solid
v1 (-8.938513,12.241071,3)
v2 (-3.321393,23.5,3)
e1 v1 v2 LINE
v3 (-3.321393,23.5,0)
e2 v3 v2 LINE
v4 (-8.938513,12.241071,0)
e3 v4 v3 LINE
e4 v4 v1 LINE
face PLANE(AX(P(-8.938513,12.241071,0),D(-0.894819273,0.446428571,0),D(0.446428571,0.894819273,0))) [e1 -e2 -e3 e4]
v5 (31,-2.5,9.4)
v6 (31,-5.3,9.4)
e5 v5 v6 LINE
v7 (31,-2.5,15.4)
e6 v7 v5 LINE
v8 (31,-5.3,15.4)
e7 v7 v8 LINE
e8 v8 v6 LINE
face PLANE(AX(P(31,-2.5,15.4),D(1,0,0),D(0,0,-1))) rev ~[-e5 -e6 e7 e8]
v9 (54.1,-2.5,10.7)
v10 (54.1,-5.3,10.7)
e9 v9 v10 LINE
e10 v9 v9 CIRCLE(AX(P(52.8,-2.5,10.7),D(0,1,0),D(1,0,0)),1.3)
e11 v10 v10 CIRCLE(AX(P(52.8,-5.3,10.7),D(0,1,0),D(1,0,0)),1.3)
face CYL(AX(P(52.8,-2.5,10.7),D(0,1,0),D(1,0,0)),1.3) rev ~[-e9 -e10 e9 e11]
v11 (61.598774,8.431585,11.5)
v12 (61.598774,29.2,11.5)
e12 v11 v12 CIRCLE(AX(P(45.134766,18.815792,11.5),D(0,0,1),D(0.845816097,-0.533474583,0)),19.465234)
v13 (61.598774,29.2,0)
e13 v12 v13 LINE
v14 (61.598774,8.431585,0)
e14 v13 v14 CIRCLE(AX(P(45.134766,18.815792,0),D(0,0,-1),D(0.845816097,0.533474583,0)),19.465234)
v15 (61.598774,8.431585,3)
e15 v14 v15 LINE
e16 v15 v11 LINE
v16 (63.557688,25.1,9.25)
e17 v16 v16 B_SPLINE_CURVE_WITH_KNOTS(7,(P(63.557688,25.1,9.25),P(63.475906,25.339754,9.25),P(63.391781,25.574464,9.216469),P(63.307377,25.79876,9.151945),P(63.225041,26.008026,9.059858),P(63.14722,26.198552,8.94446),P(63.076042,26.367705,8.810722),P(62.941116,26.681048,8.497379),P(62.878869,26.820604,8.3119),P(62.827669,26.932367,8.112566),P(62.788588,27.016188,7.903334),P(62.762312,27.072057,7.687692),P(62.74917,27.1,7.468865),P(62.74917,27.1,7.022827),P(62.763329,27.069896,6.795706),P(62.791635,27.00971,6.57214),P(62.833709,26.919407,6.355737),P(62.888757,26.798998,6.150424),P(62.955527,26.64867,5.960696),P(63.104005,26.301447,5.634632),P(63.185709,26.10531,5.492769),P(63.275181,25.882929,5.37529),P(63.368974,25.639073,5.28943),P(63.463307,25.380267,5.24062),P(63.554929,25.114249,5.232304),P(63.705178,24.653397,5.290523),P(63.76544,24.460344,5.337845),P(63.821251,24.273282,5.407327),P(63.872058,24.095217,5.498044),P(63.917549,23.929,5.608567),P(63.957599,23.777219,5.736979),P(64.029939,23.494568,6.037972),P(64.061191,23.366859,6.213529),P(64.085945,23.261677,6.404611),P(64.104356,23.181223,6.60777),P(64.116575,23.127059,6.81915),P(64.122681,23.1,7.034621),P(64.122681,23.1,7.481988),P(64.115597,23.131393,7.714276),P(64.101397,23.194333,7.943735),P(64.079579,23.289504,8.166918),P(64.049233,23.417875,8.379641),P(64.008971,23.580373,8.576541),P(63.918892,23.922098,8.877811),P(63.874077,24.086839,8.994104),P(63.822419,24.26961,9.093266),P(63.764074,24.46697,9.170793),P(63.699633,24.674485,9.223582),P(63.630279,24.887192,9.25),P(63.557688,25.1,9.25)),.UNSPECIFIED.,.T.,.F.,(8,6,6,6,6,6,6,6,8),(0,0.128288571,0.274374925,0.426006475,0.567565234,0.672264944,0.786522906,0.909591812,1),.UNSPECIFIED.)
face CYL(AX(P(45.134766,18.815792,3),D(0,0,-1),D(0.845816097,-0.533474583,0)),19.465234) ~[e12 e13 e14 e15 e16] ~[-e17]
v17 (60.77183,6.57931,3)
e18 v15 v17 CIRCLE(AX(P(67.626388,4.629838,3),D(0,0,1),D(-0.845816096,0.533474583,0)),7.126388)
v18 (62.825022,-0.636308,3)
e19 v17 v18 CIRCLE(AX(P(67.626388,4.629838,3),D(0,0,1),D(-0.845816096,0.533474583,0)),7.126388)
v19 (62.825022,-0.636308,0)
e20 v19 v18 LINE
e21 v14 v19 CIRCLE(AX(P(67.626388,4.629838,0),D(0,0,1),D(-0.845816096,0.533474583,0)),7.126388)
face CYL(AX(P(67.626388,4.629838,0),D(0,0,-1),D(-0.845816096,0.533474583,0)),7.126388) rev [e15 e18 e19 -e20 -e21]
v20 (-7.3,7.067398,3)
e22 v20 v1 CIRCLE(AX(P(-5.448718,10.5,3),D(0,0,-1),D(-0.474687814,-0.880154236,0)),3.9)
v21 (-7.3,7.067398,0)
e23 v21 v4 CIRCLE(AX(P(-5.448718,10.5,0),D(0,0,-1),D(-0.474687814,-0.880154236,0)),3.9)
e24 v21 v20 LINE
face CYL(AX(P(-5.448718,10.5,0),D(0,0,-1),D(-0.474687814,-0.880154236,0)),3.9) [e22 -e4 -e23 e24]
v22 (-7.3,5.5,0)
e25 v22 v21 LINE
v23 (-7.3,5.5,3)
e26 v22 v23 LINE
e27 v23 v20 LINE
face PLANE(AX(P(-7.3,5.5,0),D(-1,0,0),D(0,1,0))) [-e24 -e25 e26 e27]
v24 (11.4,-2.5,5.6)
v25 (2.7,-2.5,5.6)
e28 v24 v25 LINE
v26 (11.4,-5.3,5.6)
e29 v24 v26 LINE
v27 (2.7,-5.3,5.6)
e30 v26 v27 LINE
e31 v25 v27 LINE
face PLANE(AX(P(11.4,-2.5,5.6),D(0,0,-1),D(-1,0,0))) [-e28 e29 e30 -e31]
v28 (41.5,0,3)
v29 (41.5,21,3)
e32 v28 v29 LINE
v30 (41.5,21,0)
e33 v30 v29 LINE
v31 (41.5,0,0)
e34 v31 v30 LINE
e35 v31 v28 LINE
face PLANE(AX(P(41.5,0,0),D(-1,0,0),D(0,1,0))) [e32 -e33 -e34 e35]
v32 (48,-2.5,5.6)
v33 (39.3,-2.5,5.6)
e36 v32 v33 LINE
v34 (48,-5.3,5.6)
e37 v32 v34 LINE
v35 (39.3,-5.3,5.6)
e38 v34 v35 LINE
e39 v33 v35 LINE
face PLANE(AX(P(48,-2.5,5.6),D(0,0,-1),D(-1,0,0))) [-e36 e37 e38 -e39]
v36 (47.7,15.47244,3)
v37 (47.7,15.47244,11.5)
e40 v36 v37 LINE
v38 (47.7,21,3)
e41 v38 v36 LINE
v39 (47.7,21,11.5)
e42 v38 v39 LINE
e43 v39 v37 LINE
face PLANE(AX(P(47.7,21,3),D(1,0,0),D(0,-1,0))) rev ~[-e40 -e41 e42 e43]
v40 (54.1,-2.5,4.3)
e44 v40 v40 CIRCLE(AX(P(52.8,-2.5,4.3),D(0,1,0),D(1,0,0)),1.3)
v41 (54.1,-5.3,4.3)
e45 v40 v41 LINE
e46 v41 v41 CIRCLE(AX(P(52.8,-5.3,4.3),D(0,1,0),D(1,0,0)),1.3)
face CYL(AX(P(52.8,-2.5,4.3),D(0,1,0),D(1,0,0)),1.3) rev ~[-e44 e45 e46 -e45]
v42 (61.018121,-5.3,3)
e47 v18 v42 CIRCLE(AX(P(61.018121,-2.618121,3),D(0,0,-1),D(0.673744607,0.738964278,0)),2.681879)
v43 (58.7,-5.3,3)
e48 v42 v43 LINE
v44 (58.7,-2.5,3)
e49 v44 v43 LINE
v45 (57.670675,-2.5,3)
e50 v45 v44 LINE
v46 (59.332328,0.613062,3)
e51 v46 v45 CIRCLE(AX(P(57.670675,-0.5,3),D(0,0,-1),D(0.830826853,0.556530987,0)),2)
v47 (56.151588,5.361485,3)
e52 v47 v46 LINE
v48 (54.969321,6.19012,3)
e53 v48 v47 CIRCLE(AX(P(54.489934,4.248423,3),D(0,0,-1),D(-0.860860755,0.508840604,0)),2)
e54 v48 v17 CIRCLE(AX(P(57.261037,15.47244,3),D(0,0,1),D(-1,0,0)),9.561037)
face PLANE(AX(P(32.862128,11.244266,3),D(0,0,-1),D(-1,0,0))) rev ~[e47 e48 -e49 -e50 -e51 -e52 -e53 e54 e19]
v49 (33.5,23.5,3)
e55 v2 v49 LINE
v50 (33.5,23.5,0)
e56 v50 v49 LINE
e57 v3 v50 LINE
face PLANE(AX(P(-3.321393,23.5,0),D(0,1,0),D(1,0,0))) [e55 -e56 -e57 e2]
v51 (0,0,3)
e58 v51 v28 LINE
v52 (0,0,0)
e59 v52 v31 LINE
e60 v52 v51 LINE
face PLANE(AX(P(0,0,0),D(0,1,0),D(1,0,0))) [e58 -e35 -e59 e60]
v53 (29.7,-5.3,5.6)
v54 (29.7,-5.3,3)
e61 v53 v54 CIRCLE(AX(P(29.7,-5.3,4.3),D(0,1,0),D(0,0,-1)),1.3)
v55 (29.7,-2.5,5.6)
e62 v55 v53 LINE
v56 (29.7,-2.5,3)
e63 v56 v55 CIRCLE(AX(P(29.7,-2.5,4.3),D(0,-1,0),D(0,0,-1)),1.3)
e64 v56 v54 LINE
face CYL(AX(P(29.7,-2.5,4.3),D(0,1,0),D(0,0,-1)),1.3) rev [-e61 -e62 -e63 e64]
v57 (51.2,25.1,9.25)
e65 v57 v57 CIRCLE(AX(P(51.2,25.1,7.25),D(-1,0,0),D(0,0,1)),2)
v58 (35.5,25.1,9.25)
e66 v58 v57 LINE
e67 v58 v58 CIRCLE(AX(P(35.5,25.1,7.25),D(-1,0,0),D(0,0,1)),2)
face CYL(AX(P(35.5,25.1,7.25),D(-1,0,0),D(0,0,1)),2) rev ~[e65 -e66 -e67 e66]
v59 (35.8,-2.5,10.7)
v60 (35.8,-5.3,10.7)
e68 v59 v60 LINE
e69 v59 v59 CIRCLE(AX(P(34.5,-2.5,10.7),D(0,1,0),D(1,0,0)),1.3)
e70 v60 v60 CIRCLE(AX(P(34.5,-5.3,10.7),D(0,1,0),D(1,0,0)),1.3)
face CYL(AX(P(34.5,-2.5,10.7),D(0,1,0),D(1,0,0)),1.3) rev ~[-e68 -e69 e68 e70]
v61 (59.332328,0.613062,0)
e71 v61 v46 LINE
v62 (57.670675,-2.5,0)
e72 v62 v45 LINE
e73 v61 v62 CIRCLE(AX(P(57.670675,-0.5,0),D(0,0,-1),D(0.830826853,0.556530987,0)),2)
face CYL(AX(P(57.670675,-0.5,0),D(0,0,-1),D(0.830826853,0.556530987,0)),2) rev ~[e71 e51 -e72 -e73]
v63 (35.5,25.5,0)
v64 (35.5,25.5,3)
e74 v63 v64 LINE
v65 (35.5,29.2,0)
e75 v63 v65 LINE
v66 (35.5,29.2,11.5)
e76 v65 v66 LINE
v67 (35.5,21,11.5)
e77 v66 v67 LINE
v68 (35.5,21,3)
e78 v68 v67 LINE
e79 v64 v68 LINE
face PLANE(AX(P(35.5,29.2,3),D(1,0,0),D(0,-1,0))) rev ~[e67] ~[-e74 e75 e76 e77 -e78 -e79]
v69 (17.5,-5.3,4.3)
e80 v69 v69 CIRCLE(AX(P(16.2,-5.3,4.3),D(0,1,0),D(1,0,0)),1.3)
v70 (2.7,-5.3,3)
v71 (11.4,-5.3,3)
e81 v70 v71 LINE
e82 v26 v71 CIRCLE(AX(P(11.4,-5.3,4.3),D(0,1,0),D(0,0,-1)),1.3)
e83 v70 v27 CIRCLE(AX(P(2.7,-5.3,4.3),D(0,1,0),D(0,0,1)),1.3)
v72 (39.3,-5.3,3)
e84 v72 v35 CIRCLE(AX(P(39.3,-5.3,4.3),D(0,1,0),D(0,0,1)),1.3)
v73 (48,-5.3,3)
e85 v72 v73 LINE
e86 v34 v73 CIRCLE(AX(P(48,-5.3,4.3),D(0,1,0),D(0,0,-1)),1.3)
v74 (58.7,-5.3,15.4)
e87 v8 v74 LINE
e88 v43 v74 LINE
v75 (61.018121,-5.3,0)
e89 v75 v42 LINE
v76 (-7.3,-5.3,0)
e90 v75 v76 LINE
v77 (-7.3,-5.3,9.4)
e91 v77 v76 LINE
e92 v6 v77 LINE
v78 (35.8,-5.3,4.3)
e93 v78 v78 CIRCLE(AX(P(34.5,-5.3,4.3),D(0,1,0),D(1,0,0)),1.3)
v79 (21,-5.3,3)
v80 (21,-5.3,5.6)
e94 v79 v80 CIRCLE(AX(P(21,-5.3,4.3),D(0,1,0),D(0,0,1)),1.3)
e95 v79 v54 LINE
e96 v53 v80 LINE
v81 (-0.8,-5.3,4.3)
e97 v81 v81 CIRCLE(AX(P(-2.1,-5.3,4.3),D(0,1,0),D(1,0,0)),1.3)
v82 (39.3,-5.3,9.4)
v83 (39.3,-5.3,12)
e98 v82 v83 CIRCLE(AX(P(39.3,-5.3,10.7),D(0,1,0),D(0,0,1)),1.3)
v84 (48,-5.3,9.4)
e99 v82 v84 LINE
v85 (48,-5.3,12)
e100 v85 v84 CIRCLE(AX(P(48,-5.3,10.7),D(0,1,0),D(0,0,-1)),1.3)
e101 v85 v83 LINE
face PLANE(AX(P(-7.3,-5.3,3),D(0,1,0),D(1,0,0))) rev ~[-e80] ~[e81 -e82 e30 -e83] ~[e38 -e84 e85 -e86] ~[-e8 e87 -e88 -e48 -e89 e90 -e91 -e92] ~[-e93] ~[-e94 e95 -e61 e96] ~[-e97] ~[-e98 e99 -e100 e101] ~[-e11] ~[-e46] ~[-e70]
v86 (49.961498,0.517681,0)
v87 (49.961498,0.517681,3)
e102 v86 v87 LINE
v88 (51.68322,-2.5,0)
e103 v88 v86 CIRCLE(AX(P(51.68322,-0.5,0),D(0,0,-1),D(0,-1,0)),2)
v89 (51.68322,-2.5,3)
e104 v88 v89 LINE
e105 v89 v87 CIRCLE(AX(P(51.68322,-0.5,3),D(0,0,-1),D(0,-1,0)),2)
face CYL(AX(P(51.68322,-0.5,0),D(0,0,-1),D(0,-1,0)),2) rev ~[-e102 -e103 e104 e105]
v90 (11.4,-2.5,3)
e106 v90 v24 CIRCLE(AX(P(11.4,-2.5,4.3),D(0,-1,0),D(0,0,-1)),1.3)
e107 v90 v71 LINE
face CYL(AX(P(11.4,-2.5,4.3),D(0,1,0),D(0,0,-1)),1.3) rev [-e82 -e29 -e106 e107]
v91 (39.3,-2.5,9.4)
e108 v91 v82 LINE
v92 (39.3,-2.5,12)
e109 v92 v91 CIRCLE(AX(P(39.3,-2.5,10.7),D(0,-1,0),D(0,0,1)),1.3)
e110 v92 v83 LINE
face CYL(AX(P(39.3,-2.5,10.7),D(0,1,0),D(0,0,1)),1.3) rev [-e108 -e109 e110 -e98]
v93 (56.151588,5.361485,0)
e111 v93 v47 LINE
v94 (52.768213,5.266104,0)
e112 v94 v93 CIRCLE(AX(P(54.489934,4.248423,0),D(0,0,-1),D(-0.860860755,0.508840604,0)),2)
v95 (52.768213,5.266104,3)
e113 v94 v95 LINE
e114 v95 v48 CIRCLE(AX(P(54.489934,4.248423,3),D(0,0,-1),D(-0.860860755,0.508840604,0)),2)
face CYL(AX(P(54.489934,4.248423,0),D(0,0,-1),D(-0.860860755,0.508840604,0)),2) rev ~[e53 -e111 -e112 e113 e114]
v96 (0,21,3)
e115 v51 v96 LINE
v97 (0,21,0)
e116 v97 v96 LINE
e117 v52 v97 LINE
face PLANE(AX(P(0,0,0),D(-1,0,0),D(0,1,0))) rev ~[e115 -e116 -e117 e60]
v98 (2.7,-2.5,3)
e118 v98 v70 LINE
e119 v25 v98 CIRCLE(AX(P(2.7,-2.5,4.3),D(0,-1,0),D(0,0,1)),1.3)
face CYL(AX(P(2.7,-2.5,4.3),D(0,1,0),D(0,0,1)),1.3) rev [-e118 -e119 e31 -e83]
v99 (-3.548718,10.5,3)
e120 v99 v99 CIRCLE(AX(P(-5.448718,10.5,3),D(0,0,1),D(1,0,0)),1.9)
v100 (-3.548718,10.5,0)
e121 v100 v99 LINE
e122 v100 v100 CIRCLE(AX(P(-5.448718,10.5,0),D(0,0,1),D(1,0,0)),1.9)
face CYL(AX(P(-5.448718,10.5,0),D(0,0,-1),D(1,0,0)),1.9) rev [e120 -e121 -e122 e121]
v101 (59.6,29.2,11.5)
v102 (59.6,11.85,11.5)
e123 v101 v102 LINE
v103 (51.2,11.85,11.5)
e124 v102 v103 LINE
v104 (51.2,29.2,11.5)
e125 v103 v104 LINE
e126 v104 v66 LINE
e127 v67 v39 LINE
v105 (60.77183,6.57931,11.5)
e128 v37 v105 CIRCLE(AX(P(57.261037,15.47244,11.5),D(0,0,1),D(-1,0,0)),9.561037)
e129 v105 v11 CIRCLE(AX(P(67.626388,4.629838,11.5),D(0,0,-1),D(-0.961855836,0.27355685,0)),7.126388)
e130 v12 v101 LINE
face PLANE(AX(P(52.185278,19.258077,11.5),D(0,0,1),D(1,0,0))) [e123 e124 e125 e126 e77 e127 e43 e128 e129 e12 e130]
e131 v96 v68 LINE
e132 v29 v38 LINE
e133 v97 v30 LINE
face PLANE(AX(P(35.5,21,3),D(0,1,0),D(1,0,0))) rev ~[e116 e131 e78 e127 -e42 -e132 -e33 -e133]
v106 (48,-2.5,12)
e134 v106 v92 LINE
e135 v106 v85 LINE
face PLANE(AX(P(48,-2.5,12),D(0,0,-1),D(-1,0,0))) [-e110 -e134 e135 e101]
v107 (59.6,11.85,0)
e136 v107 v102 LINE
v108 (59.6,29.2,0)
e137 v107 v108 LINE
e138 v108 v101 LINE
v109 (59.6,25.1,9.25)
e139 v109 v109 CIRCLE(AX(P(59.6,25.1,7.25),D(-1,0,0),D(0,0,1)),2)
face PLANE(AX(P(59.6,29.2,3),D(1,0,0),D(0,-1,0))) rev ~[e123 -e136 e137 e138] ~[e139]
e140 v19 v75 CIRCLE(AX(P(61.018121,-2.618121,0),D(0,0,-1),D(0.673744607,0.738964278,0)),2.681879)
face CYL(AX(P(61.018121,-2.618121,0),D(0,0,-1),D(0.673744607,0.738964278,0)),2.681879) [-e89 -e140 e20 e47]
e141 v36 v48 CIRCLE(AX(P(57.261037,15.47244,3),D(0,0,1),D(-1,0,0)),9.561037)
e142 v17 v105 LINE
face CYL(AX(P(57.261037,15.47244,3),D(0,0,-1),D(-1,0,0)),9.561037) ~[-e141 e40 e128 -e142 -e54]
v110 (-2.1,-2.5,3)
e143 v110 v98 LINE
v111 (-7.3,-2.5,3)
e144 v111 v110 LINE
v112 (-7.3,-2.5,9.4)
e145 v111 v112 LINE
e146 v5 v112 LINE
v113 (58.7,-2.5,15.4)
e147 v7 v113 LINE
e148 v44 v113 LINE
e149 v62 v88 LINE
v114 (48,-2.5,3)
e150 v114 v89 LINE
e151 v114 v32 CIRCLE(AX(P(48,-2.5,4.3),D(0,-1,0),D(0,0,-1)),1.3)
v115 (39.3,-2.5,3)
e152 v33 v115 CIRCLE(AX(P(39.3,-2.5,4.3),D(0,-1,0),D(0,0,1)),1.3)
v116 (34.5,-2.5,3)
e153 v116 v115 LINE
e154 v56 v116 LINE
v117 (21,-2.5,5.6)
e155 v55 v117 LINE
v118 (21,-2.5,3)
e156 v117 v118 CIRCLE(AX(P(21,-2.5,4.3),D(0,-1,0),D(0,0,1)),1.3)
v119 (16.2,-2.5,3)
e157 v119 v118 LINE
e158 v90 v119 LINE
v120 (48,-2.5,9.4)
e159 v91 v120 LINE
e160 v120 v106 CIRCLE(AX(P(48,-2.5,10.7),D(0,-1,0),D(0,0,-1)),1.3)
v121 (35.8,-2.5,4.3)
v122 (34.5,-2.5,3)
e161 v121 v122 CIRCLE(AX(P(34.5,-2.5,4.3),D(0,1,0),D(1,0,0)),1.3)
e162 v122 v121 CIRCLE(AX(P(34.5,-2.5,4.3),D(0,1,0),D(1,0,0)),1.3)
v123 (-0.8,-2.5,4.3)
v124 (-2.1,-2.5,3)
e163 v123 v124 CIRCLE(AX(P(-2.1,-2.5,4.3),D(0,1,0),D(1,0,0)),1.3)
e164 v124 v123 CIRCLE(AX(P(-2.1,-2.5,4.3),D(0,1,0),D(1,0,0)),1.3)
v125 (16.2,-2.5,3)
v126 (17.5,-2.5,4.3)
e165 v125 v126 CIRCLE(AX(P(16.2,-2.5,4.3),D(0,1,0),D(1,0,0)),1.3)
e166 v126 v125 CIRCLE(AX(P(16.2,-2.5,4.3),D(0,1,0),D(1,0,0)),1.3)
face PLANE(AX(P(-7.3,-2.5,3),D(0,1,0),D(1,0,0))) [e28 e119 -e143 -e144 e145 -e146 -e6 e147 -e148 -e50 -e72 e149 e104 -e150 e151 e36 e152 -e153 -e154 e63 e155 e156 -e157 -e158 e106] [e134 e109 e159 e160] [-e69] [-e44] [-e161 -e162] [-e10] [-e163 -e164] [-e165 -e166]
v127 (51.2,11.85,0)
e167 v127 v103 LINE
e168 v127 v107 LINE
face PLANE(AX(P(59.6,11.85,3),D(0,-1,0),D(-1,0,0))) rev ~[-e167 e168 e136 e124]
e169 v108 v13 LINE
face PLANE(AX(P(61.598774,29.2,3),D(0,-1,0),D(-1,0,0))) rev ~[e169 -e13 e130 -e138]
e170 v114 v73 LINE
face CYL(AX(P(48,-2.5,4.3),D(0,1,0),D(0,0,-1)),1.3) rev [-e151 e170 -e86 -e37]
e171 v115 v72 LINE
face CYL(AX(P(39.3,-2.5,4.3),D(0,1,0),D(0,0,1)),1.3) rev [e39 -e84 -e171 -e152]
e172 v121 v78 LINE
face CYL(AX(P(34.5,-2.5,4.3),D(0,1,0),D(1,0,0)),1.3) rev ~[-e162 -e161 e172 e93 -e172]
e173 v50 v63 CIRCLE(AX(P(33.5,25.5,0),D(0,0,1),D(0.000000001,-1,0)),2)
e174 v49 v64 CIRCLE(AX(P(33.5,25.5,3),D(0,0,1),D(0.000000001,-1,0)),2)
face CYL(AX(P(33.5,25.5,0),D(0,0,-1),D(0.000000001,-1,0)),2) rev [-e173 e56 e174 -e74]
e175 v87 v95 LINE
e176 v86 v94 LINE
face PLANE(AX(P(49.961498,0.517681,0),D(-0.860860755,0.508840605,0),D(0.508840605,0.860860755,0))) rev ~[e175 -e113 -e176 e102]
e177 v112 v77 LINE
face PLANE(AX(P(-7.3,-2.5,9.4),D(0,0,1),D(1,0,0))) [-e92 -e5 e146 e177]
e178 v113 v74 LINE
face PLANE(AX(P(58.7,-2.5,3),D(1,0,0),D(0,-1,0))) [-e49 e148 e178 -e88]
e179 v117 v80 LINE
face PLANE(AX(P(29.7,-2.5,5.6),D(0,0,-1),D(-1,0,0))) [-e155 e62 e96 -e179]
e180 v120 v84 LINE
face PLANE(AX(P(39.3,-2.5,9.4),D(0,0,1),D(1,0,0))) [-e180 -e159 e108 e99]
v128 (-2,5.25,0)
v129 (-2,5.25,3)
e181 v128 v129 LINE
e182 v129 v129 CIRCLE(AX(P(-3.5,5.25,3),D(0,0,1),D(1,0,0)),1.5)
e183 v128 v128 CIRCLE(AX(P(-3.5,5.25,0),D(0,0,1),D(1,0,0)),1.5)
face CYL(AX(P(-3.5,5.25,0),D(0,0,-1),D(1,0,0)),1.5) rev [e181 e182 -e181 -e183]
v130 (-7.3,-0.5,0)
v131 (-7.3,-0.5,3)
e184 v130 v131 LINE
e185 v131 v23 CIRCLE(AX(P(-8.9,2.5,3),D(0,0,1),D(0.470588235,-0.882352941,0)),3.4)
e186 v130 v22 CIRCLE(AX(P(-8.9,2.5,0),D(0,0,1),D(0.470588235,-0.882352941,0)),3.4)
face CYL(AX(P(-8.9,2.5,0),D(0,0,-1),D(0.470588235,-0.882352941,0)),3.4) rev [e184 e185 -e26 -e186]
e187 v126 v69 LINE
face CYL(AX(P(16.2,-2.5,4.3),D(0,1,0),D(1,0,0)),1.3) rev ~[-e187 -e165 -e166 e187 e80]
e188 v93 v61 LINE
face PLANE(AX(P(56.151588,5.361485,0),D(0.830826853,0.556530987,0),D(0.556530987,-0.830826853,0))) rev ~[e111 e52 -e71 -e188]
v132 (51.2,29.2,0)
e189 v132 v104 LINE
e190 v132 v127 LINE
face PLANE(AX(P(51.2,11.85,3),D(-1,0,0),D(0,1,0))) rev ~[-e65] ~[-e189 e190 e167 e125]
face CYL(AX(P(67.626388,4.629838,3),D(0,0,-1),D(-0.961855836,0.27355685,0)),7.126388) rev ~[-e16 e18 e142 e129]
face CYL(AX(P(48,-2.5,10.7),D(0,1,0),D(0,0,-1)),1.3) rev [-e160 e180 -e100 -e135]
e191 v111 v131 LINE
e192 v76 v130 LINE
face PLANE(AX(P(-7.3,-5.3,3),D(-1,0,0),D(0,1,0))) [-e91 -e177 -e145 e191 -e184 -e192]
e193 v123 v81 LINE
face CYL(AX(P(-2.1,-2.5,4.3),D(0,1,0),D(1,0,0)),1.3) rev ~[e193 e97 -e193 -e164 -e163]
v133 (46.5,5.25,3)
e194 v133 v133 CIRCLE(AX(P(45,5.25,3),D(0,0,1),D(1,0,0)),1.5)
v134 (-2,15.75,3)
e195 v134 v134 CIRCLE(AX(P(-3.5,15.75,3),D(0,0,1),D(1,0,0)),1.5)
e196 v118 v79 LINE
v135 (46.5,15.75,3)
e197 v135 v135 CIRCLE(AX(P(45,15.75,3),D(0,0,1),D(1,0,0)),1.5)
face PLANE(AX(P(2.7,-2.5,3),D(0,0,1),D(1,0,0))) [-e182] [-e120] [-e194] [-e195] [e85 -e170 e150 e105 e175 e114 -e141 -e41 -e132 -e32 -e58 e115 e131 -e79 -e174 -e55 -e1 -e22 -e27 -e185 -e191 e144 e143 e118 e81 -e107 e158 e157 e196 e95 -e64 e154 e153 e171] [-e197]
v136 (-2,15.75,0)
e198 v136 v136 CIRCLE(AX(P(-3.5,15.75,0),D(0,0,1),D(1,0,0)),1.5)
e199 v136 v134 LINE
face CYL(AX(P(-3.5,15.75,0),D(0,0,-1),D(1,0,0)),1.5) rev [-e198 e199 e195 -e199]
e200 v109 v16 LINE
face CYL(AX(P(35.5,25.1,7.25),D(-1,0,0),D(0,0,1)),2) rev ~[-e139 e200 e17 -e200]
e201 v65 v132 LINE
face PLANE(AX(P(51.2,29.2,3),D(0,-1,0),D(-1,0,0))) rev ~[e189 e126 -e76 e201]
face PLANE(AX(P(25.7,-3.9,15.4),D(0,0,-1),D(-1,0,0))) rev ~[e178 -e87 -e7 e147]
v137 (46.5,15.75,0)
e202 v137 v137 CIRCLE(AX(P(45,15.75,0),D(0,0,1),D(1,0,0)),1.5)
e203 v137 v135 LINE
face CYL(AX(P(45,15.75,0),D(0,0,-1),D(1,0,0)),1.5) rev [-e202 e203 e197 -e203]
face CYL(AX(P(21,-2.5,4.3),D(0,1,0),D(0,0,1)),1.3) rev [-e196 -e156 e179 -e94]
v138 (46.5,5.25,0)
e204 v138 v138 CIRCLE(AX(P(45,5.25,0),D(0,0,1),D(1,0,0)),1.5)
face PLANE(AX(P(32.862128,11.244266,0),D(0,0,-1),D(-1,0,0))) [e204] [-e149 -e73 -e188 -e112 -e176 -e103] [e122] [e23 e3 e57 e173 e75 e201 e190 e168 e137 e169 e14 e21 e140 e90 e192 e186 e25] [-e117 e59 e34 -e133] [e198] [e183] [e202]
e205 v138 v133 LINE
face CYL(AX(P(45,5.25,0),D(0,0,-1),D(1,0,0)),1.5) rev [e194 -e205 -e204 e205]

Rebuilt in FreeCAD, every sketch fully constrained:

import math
import FreeCAD as App
import Part
import Sketcher
Q = App.Units.Quantity


def add_polygon(sketch, points):
    """Adds a closed chain of lines whose ends are joined by coincident constraints."""
    first, n = sketch.GeometryCount, len(points)
    for a, b in zip(points, points[1:] + points[:1]):
        sketch.addGeometry(Part.LineSegment(App.Vector(*a, 0), App.Vector(*b, 0)), False)
    for i in range(n):
        sketch.addConstraint(Sketcher.Constraint("Coincident", first + i, 2, first + (i + 1) % n, 1))

doc = App.newDocument("Part")
body = doc.addObject("PartDesign::Body", "Body")

# Sketch on XY plane
sketch1 = doc.addObject("Sketcher::SketchObject", "Sketch")
body.addObject(sketch1)
sketch1.AttachmentSupport = (doc.XY_Plane, [""])
sketch1.MapMode = "FlatFace"
sketch1.addGeometry(Part.LineSegment(App.Vector(33.5, 23.5, 0), App.Vector(-3.321393, 23.5, 0)), False)  # 0
sketch1.addGeometry(Part.LineSegment(App.Vector(-3.321393, 23.5, 0), App.Vector(-8.938513, 12.241071, 0)), False)  # 1
sketch1.addGeometry(Part.ArcOfCircle(Part.Circle(App.Vector(-5.448718, 10.5, 0), App.Vector(0, 0, 1), 3.9), math.radians(153.485225), math.radians(241.660974)), False)  # 2
sketch1.addGeometry(Part.LineSegment(App.Vector(-7.3, 7.067398, 0), App.Vector(-7.3, 5.5, 0)), False)  # 3
sketch1.addGeometry(Part.ArcOfCircle(Part.Circle(App.Vector(-8.9, 2.5, 0), App.Vector(0, 0, 1), 3.4), math.radians(-61.927513), math.radians(61.927513)), False)  # 4
sketch1.addGeometry(Part.LineSegment(App.Vector(-7.3, -0.5, 0), App.Vector(-7.3, -5.3, 0)), False)  # 5
sketch1.addGeometry(Part.LineSegment(App.Vector(-7.3, -5.3, 0), App.Vector(61.018121, -5.3, 0)), False)  # 6
sketch1.addGeometry(Part.ArcOfCircle(Part.Circle(App.Vector(61.018121, -2.618121, 0), App.Vector(0, 0, 1), 2.681879), math.radians(-90), math.radians(47.643263)), False)  # 7
sketch1.addGeometry(Part.ArcOfCircle(Part.Circle(App.Vector(67.626388, 4.629838, 0), App.Vector(0, 0, 1), 7.126388), math.radians(147.75948), math.radians(227.643263)), False)  # 8
sketch1.addGeometry(Part.ArcOfCircle(Part.Circle(App.Vector(45.134766, 18.815792, 0), App.Vector(0, 0, 1), 19.465234), math.radians(-32.24052), math.radians(32.24052)), False)  # 9
sketch1.addGeometry(Part.LineSegment(App.Vector(61.598774, 29.2, 0), App.Vector(59.6, 29.2, 0)), False)  # 10
sketch1.addGeometry(Part.LineSegment(App.Vector(59.6, 29.2, 0), App.Vector(59.6, 11.85, 0)), False)  # 11
sketch1.addGeometry(Part.LineSegment(App.Vector(59.6, 11.85, 0), App.Vector(51.2, 11.85, 0)), False)  # 12
sketch1.addGeometry(Part.LineSegment(App.Vector(51.2, 11.85, 0), App.Vector(51.2, 29.2, 0)), False)  # 13
sketch1.addGeometry(Part.LineSegment(App.Vector(51.2, 29.2, 0), App.Vector(35.5, 29.2, 0)), False)  # 14
sketch1.addGeometry(Part.LineSegment(App.Vector(35.5, 29.2, 0), App.Vector(35.5, 25.5, 0)), False)  # 15
sketch1.addGeometry(Part.ArcOfCircle(Part.Circle(App.Vector(33.5, 25.5, 0), App.Vector(0, 0, 1), 2), math.radians(-90), math.radians(0)), False)  # 16
sketch1.addGeometry(Part.LineSegment(App.Vector(49.961498, 0.517681, 0), App.Vector(52.768213, 5.266104, 0)), False)  # 17
sketch1.addGeometry(Part.ArcOfCircle(Part.Circle(App.Vector(54.489934, 4.248423, 0), App.Vector(0, 0, 1), 2), math.radians(33.81623), math.radians(149.413366)), False)  # 18
sketch1.addGeometry(Part.LineSegment(App.Vector(56.151588, 5.361485, 0), App.Vector(59.332328, 0.613062, 0)), False)  # 19
sketch1.addGeometry(Part.ArcOfCircle(Part.Circle(App.Vector(57.670675, -0.5, 0), App.Vector(0, 0, 1), 2), math.radians(-90), math.radians(33.81623)), False)  # 20
sketch1.addGeometry(Part.LineSegment(App.Vector(57.670675, -2.5, 0), App.Vector(51.68322, -2.5, 0)), False)  # 21
sketch1.addGeometry(Part.ArcOfCircle(Part.Circle(App.Vector(51.68322, -0.5, 0), App.Vector(0, 0, 1), 2), math.radians(149.413366), math.radians(270)), False)  # 22
sketch1.addGeometry(Part.Circle(App.Vector(45, 5.25, 0), App.Vector(0, 0, 1), 1.5), False)  # 23
sketch1.addGeometry(Part.Circle(App.Vector(-3.5, 5.25, 0), App.Vector(0, 0, 1), 1.5), False)  # 24
sketch1.addGeometry(Part.Circle(App.Vector(45, 15.75, 0), App.Vector(0, 0, 1), 1.5), False)  # 25
add_polygon(sketch1, [(0, 0), (0, 21), (41.5, 21), (41.5, 0)])  # lines 26-29
sketch1.addGeometry(Part.Circle(App.Vector(-5.448718, 10.5, 0), App.Vector(0, 0, 1), 1.9), False)  # 30
sketch1.addGeometry(Part.Circle(App.Vector(-3.5, 15.75, 0), App.Vector(0, 0, 1), 1.5), False)  # 31
sketch1.addConstraint([
    Sketcher.Constraint("Coincident", 0, 2, 1, 1),
    Sketcher.Constraint("Tangent", 1, 2, 2, 1),
    Sketcher.Constraint("Coincident", 2, 2, 3, 1),
    Sketcher.Constraint("Coincident", 3, 2, 4, 2),
    Sketcher.Constraint("Coincident", 4, 1, 5, 1),
    Sketcher.Constraint("Coincident", 5, 2, 6, 1),
    Sketcher.Constraint("Tangent", 6, 2, 7, 1),
    Sketcher.Constraint("Tangent", 7, 2, 8, 2),
    Sketcher.Constraint("Tangent", 8, 1, 9, 1),
    Sketcher.Constraint("Coincident", 9, 2, 10, 1),
    Sketcher.Constraint("Coincident", 10, 2, 11, 1),
    Sketcher.Constraint("Coincident", 11, 2, 12, 1),
    Sketcher.Constraint("Coincident", 12, 2, 13, 1),
    Sketcher.Constraint("Coincident", 13, 2, 14, 1),
    Sketcher.Constraint("Coincident", 14, 2, 15, 1),
    Sketcher.Constraint("Tangent", 15, 2, 16, 2),
    Sketcher.Constraint("Tangent", 16, 1, 0, 1),
    Sketcher.Constraint("Tangent", 17, 2, 18, 2),
    Sketcher.Constraint("Tangent", 18, 1, 19, 1),
    Sketcher.Constraint("Tangent", 19, 2, 20, 2),
    Sketcher.Constraint("Tangent", 20, 1, 21, 1),
    Sketcher.Constraint("Tangent", 21, 2, 22, 2),
    Sketcher.Constraint("Tangent", 22, 1, 17, 1),
    Sketcher.Constraint("Horizontal", 0),
    Sketcher.Constraint("Vertical", 3),
    Sketcher.Constraint("Vertical", 5),
    Sketcher.Constraint("Horizontal", 6),
    Sketcher.Constraint("Horizontal", 10),
    Sketcher.Constraint("Vertical", 11),
    Sketcher.Constraint("Horizontal", 12),
    Sketcher.Constraint("Vertical", 13),
    Sketcher.Constraint("Horizontal", 14),
    Sketcher.Constraint("Vertical", 15),
    Sketcher.Constraint("Horizontal", 21),
    Sketcher.Constraint("Vertical", 26),
    Sketcher.Constraint("Horizontal", 27),
    Sketcher.Constraint("Vertical", 28),
    Sketcher.Constraint("Horizontal", 29),
    Sketcher.Constraint("Coincident", 29, 2, -1, 1),
    Sketcher.Constraint("Coincident", 30, 3, 2, 3),
    Sketcher.Constraint("Equal", 16, 18),
    Sketcher.Constraint("Equal", 18, 20),
    Sketcher.Constraint("Equal", 20, 22),
    Sketcher.Constraint("Equal", 23, 24),
    Sketcher.Constraint("Equal", 24, 25),
    Sketcher.Constraint("Equal", 25, 31),
    Sketcher.Constraint("Horizontal", 23, 3, 24, 3),
    Sketcher.Constraint("Horizontal", 25, 3, 31, 3),
    Sketcher.Constraint("Horizontal", 22, 3, 4, 1),
    Sketcher.Constraint("Horizontal", 10, 2, 13, 2),
    Sketcher.Constraint("Vertical", 23, 3, 25, 3),
    Sketcher.Constraint("Vertical", 24, 3, 31, 3),
    Sketcher.Constraint("Vertical", 3, 2, 4, 1),
    Sketcher.Constraint("Vertical", 8, 1, 9, 2),
    Sketcher.Constraint("Diameter", 23, Q("3 mm")),
    Sketcher.Constraint("Radius", 16, Q("2 mm")),
    Sketcher.Constraint("Diameter", 30, Q("3.8 mm")),
    Sketcher.Constraint("Radius", 2, Q("3.9 mm")),
    Sketcher.Constraint("Radius", 4, Q("3.4 mm")),
    Sketcher.Constraint("DistanceY", 26, 1, 26, 2, Q("21 mm")),
    Sketcher.Constraint("DistanceX", 12, 2, 12, 1, Q("8.4 mm")),
    Sketcher.Constraint("DistanceX", 14, 2, 14, 1, Q("15.7 mm")),
    Sketcher.Constraint("DistanceX", 27, 1, 27, 2, Q("41.5 mm")),
    Sketcher.Constraint("DistanceY", 5, 2, 5, 1, Q("4.8 mm")),
    Sketcher.Constraint("DistanceY", 15, 2, 15, 1, Q("3.7 mm")),
    Sketcher.Constraint("DistanceX", -1, 1, 23, 3, Q("45 mm")),
    Sketcher.Constraint("DistanceY", 4, 3, 2, 3, Q("8 mm")),
    Sketcher.Constraint("DistanceY", 2, 3, 16, 3, Q("15 mm")),
    Sketcher.Constraint("DistanceY", 20, 3, 16, 3, Q("26 mm")),
    Sketcher.Constraint("DistanceX", 24, 3, 16, 3, Q("37 mm")),
    Sketcher.Constraint("DistanceX", 15, 2, 27, 2, Q("6 mm")),
    Sketcher.Constraint("DistanceY", 11, 2, 11, 1, Q("17.35 mm")),
    Sketcher.Constraint("DistanceY", -1, 1, 2, 3, Q("10.5 mm")),
    Sketcher.Constraint("DistanceX", 4, 3, -1, 1, Q("8.9 mm")),
    Sketcher.Constraint("DistanceY", 23, 3, 25, 3, Q("10.5 mm")),
    Sketcher.Constraint("DistanceY", 12, 2, 25, 3, Q("3.9 mm")),
    Sketcher.Constraint("Radius", 7, Q("2.681879 mm")),
    Sketcher.Constraint("DistanceY", 3, 2, 3, 1, Q("1.567398 mm")),
    Sketcher.Constraint("Radius", 8, Q("7.126388 mm")),
    Sketcher.Constraint("Radius", 9, Q("19.465234 mm")),
    Sketcher.Constraint("Distance", 17, Q("5.515901 mm")),
    Sketcher.Constraint("DistanceX", 6, 1, 6, 2, Q("68.318121 mm")),
    Sketcher.Constraint("DistanceX", -1, 1, 22, 1, Q("49.961498 mm")),
    Sketcher.Constraint("DistanceX", 22, 3, 7, 3, Q("9.334901 mm")),
    Sketcher.Constraint("DistanceX", 7, 3, 7, 2, Q("1.806902 mm")),
    Sketcher.Constraint("DistanceX", 20, 3, 8, 1, Q("3.9281 mm")),
    Sketcher.Constraint("Distance", 1, Q("12.582349 mm")),
])
pad1 = doc.addObject("PartDesign::Pad", "Pad")
body.addObject(pad1)
pad1.Profile = sketch1
pad1.Length = 3

# Sketch on XY plane
sketch2 = doc.addObject("Sketcher::SketchObject", "Sketch001")
body.addObject(sketch2)
sketch2.AttachmentSupport = (doc.XY_Plane, [""])
sketch2.MapMode = "FlatFace"
sketch2.AttachmentOffset = App.Placement(App.Vector(0, 0, 3), App.Rotation())
sketch2.addGeometry([
    Part.LineSegment(App.Vector(61.598774, 29.2, 0), App.Vector(59.6, 29.2, 0)),  # 0
    Part.LineSegment(App.Vector(59.6, 29.2, 0), App.Vector(59.6, 11.85, 0)),  # 1
    Part.LineSegment(App.Vector(59.6, 11.85, 0), App.Vector(51.2, 11.85, 0)),  # 2
    Part.LineSegment(App.Vector(51.2, 11.85, 0), App.Vector(51.2, 29.2, 0)),  # 3
    Part.LineSegment(App.Vector(51.2, 29.2, 0), App.Vector(35.5, 29.2, 0)),  # 4
    Part.LineSegment(App.Vector(35.5, 29.2, 0), App.Vector(35.5, 21, 0)),  # 5
    Part.LineSegment(App.Vector(35.5, 21, 0), App.Vector(47.7, 21, 0)),  # 6
    Part.LineSegment(App.Vector(47.7, 21, 0), App.Vector(47.7, 15.47244, 0)),  # 7
    Part.ArcOfCircle(Part.Circle(App.Vector(57.261037, 15.47244, 0), App.Vector(0, 0, 1), 9.561037), math.radians(180), math.radians(291.542911)),  # 8
    Part.ArcOfCircle(Part.Circle(App.Vector(67.626388, 4.629838, 0), App.Vector(0, 0, 1), 7.126388), math.radians(147.75948), math.radians(164.12397)),  # 9
    Part.ArcOfCircle(Part.Circle(App.Vector(45.134766, 18.815792, 0), App.Vector(0, 0, 1), 19.465234), math.radians(-32.24052), math.radians(32.24052)),  # 10
], False)
sketch2.addConstraint([
    Sketcher.Constraint("Coincident", 0, 2, 1, 1),
    Sketcher.Constraint("Coincident", 1, 2, 2, 1),
    Sketcher.Constraint("Coincident", 2, 2, 3, 1),
    Sketcher.Constraint("Coincident", 3, 2, 4, 1),
    Sketcher.Constraint("Coincident", 4, 2, 5, 1),
    Sketcher.Constraint("Coincident", 5, 2, 6, 1),
    Sketcher.Constraint("Coincident", 6, 2, 7, 1),
    Sketcher.Constraint("Tangent", 7, 2, 8, 1),
    Sketcher.Constraint("Coincident", 8, 2, 9, 2),
    Sketcher.Constraint("Tangent", 9, 1, 10, 1),
    Sketcher.Constraint("Coincident", 10, 2, 0, 1),
    Sketcher.Constraint("Horizontal", 0),
    Sketcher.Constraint("Vertical", 1),
    Sketcher.Constraint("Horizontal", 2),
    Sketcher.Constraint("Vertical", 3),
    Sketcher.Constraint("Horizontal", 4),
    Sketcher.Constraint("Vertical", 5),
    Sketcher.Constraint("Horizontal", 6),
    Sketcher.Constraint("Vertical", 7),
    Sketcher.Constraint("Horizontal", 0, 2, 3, 2),
    Sketcher.Constraint("Vertical", 9, 1, 10, 2),
    Sketcher.Constraint("DistanceX", 2, 2, 2, 1, Q("8.4 mm")),
    Sketcher.Constraint("DistanceX", 4, 2, 4, 1, Q("15.7 mm")),
    Sketcher.Constraint("DistanceX", 6, 1, 6, 2, Q("12.2 mm")),
    Sketcher.Constraint("DistanceY", 5, 2, 5, 1, Q("8.2 mm")),
    Sketcher.Constraint("DistanceY", -1, 1, 5, 2, Q("21 mm")),
    Sketcher.Constraint("DistanceY", 1, 2, 1, 1, Q("17.35 mm")),
    Sketcher.Constraint("DistanceX", -1, 1, 0, 2, Q("59.6 mm")),
    Sketcher.Constraint("Radius", 8, Q("9.561037 mm")),
    Sketcher.Constraint("Radius", 9, Q("7.126388 mm")),
    Sketcher.Constraint("Radius", 10, Q("19.465234 mm")),
    Sketcher.Constraint("DistanceY", 7, 2, 7, 1, Q("5.52756 mm")),
    Sketcher.Constraint("DistanceX", 0, 2, 0, 1, Q("1.998774 mm")),
    Sketcher.Constraint("DistanceY", -1, 1, 9, 3, Q("4.629838 mm")),
])
pad2 = doc.addObject("PartDesign::Pad", "Pad001")
body.addObject(pad2)
pad2.Profile = sketch2
pad2.Length = 8.5

# Sketch on XY plane
sketch3 = doc.addObject("Sketcher::SketchObject", "Sketch002")
body.addObject(sketch3)
sketch3.AttachmentSupport = (doc.XY_Plane, [""])
sketch3.MapMode = "FlatFace"
sketch3.AttachmentOffset = App.Placement(App.Vector(0, 0, 3), App.Rotation())
add_polygon(sketch3, [(-7.3, -5.3), (58.7, -5.3), (58.7, -2.5), (-7.3, -2.5)])  # lines 0-3
sketch3.addConstraint([
    Sketcher.Constraint("Horizontal", 0),
    Sketcher.Constraint("Vertical", 1),
    Sketcher.Constraint("Horizontal", 2),
    Sketcher.Constraint("Vertical", 3),
    Sketcher.Constraint("DistanceX", 0, 1, 0, 2, Q("66 mm")),
    Sketcher.Constraint("DistanceY", 1, 1, 1, 2, Q("2.8 mm")),
    Sketcher.Constraint("DistanceX", -1, 1, 0, 2, Q("58.7 mm")),
    Sketcher.Constraint("DistanceY", 0, 2, -1, 1, Q("5.3 mm")),
])
pad3 = doc.addObject("PartDesign::Pad", "Pad002")
body.addObject(pad3)
pad3.Profile = sketch3
pad3.Length = 12.4

# Sketch on XZ plane
sketch4 = doc.addObject("Sketcher::SketchObject", "Sketch003")
body.addObject(sketch4)
sketch4.AttachmentSupport = (doc.XZ_Plane, [""])
sketch4.MapMode = "FlatFace"
sketch4.AttachmentOffset = App.Placement(App.Vector(0, 0, 2.5), App.Rotation())
sketch4.addGeometry([
    Part.Circle(App.Vector(52.8, 4.3, 0), App.Vector(0, 0, 1), 1.3),  # 0
    Part.Circle(App.Vector(34.5, 4.3, 0), App.Vector(0, 0, 1), 1.3),  # 1
    Part.Circle(App.Vector(52.8, 10.7, 0), App.Vector(0, 0, 1), 1.3),  # 2
    Part.Circle(App.Vector(34.5, 10.7, 0), App.Vector(0, 0, 1), 1.3),  # 3
    Part.Circle(App.Vector(16.2, 10.7, 0), App.Vector(0, 0, 1), 1.3),  # 4
    Part.Circle(App.Vector(-2.1, 10.7, 0), App.Vector(0, 0, 1), 1.3),  # 5
    Part.Circle(App.Vector(16.2, 4.3, 0), App.Vector(0, 0, 1), 1.3),  # 6
    Part.Circle(App.Vector(-2.1, 4.3, 0), App.Vector(0, 0, 1), 1.3),  # 7
    Part.LineSegment(App.Vector(39.3, 5.6, 0), App.Vector(48, 5.6, 0)),  # 8
    Part.ArcOfCircle(Part.Circle(App.Vector(48, 4.3, 0), App.Vector(0, 0, 1), 1.3), math.radians(-90), math.radians(90)),  # 9
    Part.LineSegment(App.Vector(48, 3, 0), App.Vector(39.3, 3, 0)),  # 10
    Part.ArcOfCircle(Part.Circle(App.Vector(39.3, 4.3, 0), App.Vector(0, 0, 1), 1.3), math.radians(90), math.radians(270)),  # 11
    Part.LineSegment(App.Vector(39.3, 12, 0), App.Vector(48, 12, 0)),  # 12
    Part.ArcOfCircle(Part.Circle(App.Vector(48, 10.7, 0), App.Vector(0, 0, 1), 1.3), math.radians(-90), math.radians(90)),  # 13
    Part.LineSegment(App.Vector(48, 9.4, 0), App.Vector(39.3, 9.4, 0)),  # 14
    Part.ArcOfCircle(Part.Circle(App.Vector(39.3, 10.7, 0), App.Vector(0, 0, 1), 1.3), math.radians(90), math.radians(270)),  # 15
    Part.LineSegment(App.Vector(21, 12, 0), App.Vector(29.7, 12, 0)),  # 16
    Part.ArcOfCircle(Part.Circle(App.Vector(29.7, 10.7, 0), App.Vector(0, 0, 1), 1.3), math.radians(-90), math.radians(90)),  # 17
    Part.LineSegment(App.Vector(29.7, 9.4, 0), App.Vector(21, 9.4, 0)),  # 18
    Part.ArcOfCircle(Part.Circle(App.Vector(21, 10.7, 0), App.Vector(0, 0, 1), 1.3), math.radians(90), math.radians(270)),  # 19
    Part.LineSegment(App.Vector(2.7, 12, 0), App.Vector(11.4, 12, 0)),  # 20
    Part.ArcOfCircle(Part.Circle(App.Vector(11.4, 10.7, 0), App.Vector(0, 0, 1), 1.3), math.radians(-90), math.radians(90)),  # 21
    Part.LineSegment(App.Vector(11.4, 9.4, 0), App.Vector(2.7, 9.4, 0)),  # 22
    Part.ArcOfCircle(Part.Circle(App.Vector(2.7, 10.7, 0), App.Vector(0, 0, 1), 1.3), math.radians(90), math.radians(270)),  # 23
    Part.LineSegment(App.Vector(21, 5.6, 0), App.Vector(29.7, 5.6, 0)),  # 24
    Part.ArcOfCircle(Part.Circle(App.Vector(29.7, 4.3, 0), App.Vector(0, 0, 1), 1.3), math.radians(-90), math.radians(90)),  # 25
    Part.LineSegment(App.Vector(29.7, 3, 0), App.Vector(21, 3, 0)),  # 26
    Part.ArcOfCircle(Part.Circle(App.Vector(21, 4.3, 0), App.Vector(0, 0, 1), 1.3), math.radians(90), math.radians(270)),  # 27
    Part.LineSegment(App.Vector(2.7, 5.6, 0), App.Vector(11.4, 5.6, 0)),  # 28
    Part.ArcOfCircle(Part.Circle(App.Vector(11.4, 4.3, 0), App.Vector(0, 0, 1), 1.3), math.radians(-90), math.radians(90)),  # 29
    Part.LineSegment(App.Vector(11.4, 3, 0), App.Vector(2.7, 3, 0)),  # 30
    Part.ArcOfCircle(Part.Circle(App.Vector(2.7, 4.3, 0), App.Vector(0, 0, 1), 1.3), math.radians(90), math.radians(270)),  # 31
], False)
sketch4.addConstraint([
    Sketcher.Constraint("Tangent", 8, 2, 9, 2),
    Sketcher.Constraint("Tangent", 9, 1, 10, 1),
    Sketcher.Constraint("Tangent", 10, 2, 11, 2),
    Sketcher.Constraint("Tangent", 11, 1, 8, 1),
    Sketcher.Constraint("Tangent", 12, 2, 13, 2),
    Sketcher.Constraint("Tangent", 13, 1, 14, 1),
    Sketcher.Constraint("Tangent", 14, 2, 15, 2),
    Sketcher.Constraint("Tangent", 15, 1, 12, 1),
    Sketcher.Constraint("Tangent", 16, 2, 17, 2),
    Sketcher.Constraint("Tangent", 17, 1, 18, 1),
    Sketcher.Constraint("Tangent", 18, 2, 19, 2),
    Sketcher.Constraint("Tangent", 19, 1, 16, 1),
    Sketcher.Constraint("Tangent", 20, 2, 21, 2),
    Sketcher.Constraint("Tangent", 21, 1, 22, 1),
    Sketcher.Constraint("Tangent", 22, 2, 23, 2),
    Sketcher.Constraint("Tangent", 23, 1, 20, 1),
    Sketcher.Constraint("Tangent", 24, 2, 25, 2),
    Sketcher.Constraint("Tangent", 25, 1, 26, 1),
    Sketcher.Constraint("Tangent", 26, 2, 27, 2),
    Sketcher.Constraint("Tangent", 27, 1, 24, 1),
    Sketcher.Constraint("Tangent", 28, 2, 29, 2),
    Sketcher.Constraint("Tangent", 29, 1, 30, 1),
    Sketcher.Constraint("Tangent", 30, 2, 31, 2),
    Sketcher.Constraint("Tangent", 31, 1, 28, 1),
    Sketcher.Constraint("Horizontal", 8),
    Sketcher.Constraint("Horizontal", 10),
    Sketcher.Constraint("Horizontal", 12),
    Sketcher.Constraint("Horizontal", 14),
    Sketcher.Constraint("Horizontal", 16),
    Sketcher.Constraint("Horizontal", 18),
    Sketcher.Constraint("Horizontal", 20),
    Sketcher.Constraint("Horizontal", 22),
    Sketcher.Constraint("Horizontal", 24),
    Sketcher.Constraint("Horizontal", 26),
    Sketcher.Constraint("Horizontal", 28),
    Sketcher.Constraint("Horizontal", 30),
    Sketcher.Constraint("Equal", 0, 1),
    Sketcher.Constraint("Equal", 1, 2),
    Sketcher.Constraint("Equal", 2, 3),
    Sketcher.Constraint("Equal", 3, 4),
    Sketcher.Constraint("Equal", 4, 5),
    Sketcher.Constraint("Equal", 5, 6),
    Sketcher.Constraint("Equal", 6, 7),
    Sketcher.Constraint("Equal", 7, 9),
    Sketcher.Constraint("Equal", 11, 13),
    Sketcher.Constraint("Equal", 15, 17),
    Sketcher.Constraint("Equal", 19, 21),
    Sketcher.Constraint("Equal", 23, 25),
    Sketcher.Constraint("Equal", 27, 29),
    Sketcher.Constraint("Horizontal", 0, 3, 1, 3),
    Sketcher.Constraint("Horizontal", 2, 3, 3, 3),
    Sketcher.Constraint("Horizontal", 3, 3, 4, 3),
    Sketcher.Constraint("Horizontal", 4, 3, 5, 3),
    Sketcher.Constraint("Horizontal", 1, 3, 6, 3),
    Sketcher.Constraint("Horizontal", 6, 3, 7, 3),
    Sketcher.Constraint("Horizontal", 7, 3, 9, 3),
    Sketcher.Constraint("Horizontal", 5, 3, 13, 3),
    Sketcher.Constraint("Horizontal", 15, 3, 17, 3),
    Sketcher.Constraint("Horizontal", 19, 3, 21, 3),
    Sketcher.Constraint("Horizontal", 11, 3, 25, 3),
    Sketcher.Constraint("Horizontal", 27, 3, 29, 3),
    Sketcher.Constraint("Vertical", 0, 3, 2, 3),
    Sketcher.Constraint("Vertical", 1, 3, 3, 3),
    Sketcher.Constraint("Vertical", 4, 3, 6, 3),
    Sketcher.Constraint("Vertical", 5, 3, 7, 3),
    Sketcher.Constraint("Vertical", 9, 3, 13, 3),
    Sketcher.Constraint("Vertical", 11, 3, 15, 3),
    Sketcher.Constraint("Vertical", 17, 3, 25, 3),
    Sketcher.Constraint("Vertical", 19, 3, 27, 3),
    Sketcher.Constraint("Vertical", 21, 3, 29, 3),
    Sketcher.Constraint("Vertical", 23, 3, 31, 3),
    Sketcher.Constraint("Equal", 14, 16),
    Sketcher.Constraint("Equal", 18, 20),
    Sketcher.Constraint("Diameter", 0, Q("2.6 mm")),
    Sketcher.Constraint("DistanceX", 8, 1, 8, 2, Q("8.7 mm")),
    Sketcher.Constraint("DistanceX", -1, 1, 9, 3, Q("48 mm")),
    Sketcher.Constraint("DistanceX", -1, 1, 19, 3, Q("21 mm")),
    Sketcher.Constraint("DistanceY", -1, 1, 9, 1, Q("3 mm")),
    Sketcher.Constraint("DistanceY", -1, 1, 12, 2, Q("12 mm")),
    Sketcher.Constraint("DistanceX", -1, 1, 0, 3, Q("52.8 mm")),
    Sketcher.Constraint("DistanceX", -1, 1, 1, 3, Q("34.5 mm")),
    Sketcher.Constraint("DistanceX", -1, 1, 4, 3, Q("16.2 mm")),
    Sketcher.Constraint("DistanceX", 5, 3, -1, 1, Q("2.1 mm")),
    Sketcher.Constraint("DistanceX", -1, 1, 21, 3, Q("11.4 mm")),
])
pocket1 = doc.addObject("PartDesign::Pocket", "Pocket")
body.addObject(pocket1)
pocket1.Profile = sketch4
pocket1.Length = 12.4
pocket1.Reversed = True

# Sketch on XZ plane
sketch5 = doc.addObject("Sketcher::SketchObject", "Sketch004")
body.addObject(sketch5)
sketch5.AttachmentSupport = (doc.XZ_Plane, [""])
sketch5.MapMode = "FlatFace"
sketch5.AttachmentOffset = App.Placement(App.Vector(0, 0, 2.5), App.Rotation())
add_polygon(sketch5, [(-7.3, 9.4), (-7.3, 15.4), (31, 15.4), (31, 9.4)])  # lines 0-3
sketch5.addConstraint([
    Sketcher.Constraint("Vertical", 0),
    Sketcher.Constraint("Horizontal", 1),
    Sketcher.Constraint("Vertical", 2),
    Sketcher.Constraint("Horizontal", 3),
    Sketcher.Constraint("DistanceY", 0, 1, 0, 2, Q("6 mm")),
    Sketcher.Constraint("DistanceX", 1, 1, 1, 2, Q("38.3 mm")),
    Sketcher.Constraint("DistanceX", -1, 1, 1, 2, Q("31 mm")),
    Sketcher.Constraint("DistanceY", -1, 1, 0, 2, Q("15.4 mm")),
])
pocket2 = doc.addObject("PartDesign::Pocket", "Pocket001")
body.addObject(pocket2)
pocket2.Profile = sketch5
pocket2.Length = 12.4
pocket2.Reversed = True

# Sketch on YZ plane
sketch6 = doc.addObject("Sketcher::SketchObject", "Sketch005")
body.addObject(sketch6)
sketch6.AttachmentSupport = (doc.YZ_Plane, [""])
sketch6.MapMode = "FlatFace"
sketch6.AttachmentOffset = App.Placement(App.Vector(0, 0, 35.5), App.Rotation())
sketch6.addGeometry(Part.Circle(App.Vector(25.1, 7.25, 0), App.Vector(0, 0, 1), 2), False)
sketch6.addConstraint([
    Sketcher.Constraint("Diameter", 0, Q("4 mm")),
    Sketcher.Constraint("DistanceX", -1, 1, 0, 3, Q("25.1 mm")),
    Sketcher.Constraint("DistanceY", -1, 1, 0, 3, Q("7.25 mm")),
])
pocket3 = doc.addObject("PartDesign::Pocket", "Pocket002")
body.addObject(pocket3)
pocket3.Profile = sketch6
pocket3.Length = 42.4
pocket3.Reversed = True

doc.recompute()
